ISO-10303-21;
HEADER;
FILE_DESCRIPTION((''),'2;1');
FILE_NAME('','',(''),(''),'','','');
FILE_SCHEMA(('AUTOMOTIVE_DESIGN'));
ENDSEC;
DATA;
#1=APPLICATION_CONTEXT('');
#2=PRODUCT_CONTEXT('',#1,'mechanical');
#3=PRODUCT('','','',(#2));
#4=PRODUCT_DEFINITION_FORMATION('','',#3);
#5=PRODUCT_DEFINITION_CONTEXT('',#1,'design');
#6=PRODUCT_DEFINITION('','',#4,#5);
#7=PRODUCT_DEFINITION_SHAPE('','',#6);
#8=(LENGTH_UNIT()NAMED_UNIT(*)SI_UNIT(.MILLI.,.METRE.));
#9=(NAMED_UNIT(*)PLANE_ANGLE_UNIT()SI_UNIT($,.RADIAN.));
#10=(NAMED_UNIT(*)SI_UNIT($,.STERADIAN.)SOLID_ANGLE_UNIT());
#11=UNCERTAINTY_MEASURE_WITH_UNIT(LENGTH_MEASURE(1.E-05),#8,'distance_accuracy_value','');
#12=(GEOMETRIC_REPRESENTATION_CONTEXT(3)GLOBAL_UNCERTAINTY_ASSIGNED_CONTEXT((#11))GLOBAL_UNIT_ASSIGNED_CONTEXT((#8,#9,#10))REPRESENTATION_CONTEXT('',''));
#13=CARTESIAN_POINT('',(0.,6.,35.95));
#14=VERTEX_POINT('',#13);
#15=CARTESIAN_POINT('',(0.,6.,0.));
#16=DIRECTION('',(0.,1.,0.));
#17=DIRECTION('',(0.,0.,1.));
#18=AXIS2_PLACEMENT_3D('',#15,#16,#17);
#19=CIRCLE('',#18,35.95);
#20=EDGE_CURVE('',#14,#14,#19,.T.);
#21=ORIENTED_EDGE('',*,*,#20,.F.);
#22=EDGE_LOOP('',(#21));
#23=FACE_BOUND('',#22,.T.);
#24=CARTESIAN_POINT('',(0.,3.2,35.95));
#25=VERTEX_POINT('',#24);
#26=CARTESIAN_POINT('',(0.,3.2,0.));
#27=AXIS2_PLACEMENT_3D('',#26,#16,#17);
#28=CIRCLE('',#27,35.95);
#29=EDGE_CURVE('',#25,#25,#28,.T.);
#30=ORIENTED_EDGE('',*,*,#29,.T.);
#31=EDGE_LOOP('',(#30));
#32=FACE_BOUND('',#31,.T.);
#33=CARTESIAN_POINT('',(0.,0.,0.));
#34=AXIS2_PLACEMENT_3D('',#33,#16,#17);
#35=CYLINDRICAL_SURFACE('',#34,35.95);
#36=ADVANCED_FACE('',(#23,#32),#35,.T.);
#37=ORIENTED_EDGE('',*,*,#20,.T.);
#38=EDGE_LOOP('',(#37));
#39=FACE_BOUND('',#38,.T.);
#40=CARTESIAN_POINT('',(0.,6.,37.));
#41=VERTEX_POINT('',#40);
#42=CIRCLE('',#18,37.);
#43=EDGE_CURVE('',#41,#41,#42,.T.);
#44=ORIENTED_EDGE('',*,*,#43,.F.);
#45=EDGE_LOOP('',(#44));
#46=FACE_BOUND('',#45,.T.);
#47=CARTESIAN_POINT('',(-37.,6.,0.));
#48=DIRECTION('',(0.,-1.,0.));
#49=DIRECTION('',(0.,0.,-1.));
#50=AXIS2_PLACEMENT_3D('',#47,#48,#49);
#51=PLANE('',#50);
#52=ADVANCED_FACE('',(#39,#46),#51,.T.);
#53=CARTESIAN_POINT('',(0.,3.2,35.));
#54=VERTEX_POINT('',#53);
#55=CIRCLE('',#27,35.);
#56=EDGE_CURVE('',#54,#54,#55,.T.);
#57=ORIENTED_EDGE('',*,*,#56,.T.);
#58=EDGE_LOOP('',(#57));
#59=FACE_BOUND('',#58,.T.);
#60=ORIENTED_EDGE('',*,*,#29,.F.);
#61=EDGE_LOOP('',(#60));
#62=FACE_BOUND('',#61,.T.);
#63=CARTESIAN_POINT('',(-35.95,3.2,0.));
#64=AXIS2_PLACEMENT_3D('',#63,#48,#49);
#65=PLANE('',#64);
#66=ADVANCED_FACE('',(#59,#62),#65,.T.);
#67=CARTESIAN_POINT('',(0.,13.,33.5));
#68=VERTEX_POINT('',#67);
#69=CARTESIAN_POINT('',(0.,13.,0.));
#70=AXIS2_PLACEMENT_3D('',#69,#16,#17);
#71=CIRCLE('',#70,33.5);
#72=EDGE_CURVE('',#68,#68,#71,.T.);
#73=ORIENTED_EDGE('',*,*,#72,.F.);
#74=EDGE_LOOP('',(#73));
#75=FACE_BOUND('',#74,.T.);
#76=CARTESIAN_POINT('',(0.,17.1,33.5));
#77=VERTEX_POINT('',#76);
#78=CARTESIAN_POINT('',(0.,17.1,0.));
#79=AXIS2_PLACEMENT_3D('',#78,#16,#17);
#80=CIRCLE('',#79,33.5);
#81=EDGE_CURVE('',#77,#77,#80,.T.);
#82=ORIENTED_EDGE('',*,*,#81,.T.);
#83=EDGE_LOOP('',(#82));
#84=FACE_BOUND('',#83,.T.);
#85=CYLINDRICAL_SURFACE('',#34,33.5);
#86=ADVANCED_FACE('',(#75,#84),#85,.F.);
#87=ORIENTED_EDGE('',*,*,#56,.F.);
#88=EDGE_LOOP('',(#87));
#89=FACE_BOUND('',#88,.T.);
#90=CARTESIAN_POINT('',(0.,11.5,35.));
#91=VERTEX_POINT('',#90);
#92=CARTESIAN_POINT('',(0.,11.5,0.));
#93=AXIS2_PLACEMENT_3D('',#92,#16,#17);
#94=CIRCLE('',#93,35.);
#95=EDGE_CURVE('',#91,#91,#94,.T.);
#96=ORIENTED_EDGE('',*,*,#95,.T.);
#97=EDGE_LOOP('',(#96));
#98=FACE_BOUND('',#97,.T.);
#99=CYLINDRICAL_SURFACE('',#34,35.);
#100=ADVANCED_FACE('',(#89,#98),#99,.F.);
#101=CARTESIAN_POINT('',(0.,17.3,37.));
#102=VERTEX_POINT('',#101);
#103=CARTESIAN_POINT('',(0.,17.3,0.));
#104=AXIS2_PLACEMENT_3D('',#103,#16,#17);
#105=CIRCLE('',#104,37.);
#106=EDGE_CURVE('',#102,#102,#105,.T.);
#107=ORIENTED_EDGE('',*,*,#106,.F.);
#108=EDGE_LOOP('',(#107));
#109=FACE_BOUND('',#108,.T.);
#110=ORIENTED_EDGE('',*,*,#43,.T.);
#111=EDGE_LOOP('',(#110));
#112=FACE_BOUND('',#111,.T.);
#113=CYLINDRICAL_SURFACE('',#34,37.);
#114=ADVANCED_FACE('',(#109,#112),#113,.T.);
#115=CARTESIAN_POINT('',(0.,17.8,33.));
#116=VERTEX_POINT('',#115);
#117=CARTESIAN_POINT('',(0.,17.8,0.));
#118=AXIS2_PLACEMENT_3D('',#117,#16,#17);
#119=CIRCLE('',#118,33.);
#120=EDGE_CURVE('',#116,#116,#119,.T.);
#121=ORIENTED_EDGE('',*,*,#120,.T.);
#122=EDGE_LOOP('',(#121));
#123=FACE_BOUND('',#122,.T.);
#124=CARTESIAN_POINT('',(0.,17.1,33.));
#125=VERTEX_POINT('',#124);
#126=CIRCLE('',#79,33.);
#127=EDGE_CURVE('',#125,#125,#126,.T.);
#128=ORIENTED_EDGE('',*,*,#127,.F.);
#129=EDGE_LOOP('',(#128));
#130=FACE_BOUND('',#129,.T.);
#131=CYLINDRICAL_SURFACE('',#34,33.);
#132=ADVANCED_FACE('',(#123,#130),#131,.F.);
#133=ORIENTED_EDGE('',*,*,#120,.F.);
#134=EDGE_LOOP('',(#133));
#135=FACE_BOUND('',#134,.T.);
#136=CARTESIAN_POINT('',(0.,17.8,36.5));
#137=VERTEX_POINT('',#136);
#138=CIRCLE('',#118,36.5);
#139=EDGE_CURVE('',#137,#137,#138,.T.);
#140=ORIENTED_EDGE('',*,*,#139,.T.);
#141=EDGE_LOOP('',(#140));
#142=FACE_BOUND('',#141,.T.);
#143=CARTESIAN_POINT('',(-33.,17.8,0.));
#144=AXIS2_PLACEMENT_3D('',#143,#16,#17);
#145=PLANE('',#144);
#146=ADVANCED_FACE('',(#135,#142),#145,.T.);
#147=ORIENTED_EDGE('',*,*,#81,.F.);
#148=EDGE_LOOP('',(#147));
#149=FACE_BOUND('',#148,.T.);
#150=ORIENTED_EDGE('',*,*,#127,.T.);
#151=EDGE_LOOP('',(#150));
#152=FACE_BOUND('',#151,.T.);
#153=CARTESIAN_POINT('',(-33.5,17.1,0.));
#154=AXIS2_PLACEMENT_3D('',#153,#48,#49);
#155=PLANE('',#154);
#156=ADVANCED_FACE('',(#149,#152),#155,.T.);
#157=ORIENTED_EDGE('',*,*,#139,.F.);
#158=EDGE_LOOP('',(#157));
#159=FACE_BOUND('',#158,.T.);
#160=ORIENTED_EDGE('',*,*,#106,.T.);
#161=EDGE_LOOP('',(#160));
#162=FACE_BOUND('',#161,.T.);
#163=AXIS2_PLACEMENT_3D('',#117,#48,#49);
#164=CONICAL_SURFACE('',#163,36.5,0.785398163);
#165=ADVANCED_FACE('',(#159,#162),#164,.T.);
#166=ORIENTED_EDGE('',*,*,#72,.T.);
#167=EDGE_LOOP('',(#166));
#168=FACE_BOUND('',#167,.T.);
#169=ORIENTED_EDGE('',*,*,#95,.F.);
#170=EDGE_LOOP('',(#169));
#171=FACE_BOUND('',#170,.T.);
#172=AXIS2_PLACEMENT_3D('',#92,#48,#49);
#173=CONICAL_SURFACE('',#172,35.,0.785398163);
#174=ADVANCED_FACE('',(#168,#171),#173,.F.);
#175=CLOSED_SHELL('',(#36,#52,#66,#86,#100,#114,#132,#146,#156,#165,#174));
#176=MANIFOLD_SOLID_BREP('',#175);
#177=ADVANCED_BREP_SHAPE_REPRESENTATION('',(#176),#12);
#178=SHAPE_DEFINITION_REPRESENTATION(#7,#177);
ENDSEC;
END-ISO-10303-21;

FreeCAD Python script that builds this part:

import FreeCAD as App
import Part
import Sketcher
Q = App.Units.Quantity

doc = App.newDocument("Part")
body = doc.addObject("PartDesign::Body", "Body")

sketch1 = body.newObject("Sketcher::SketchObject", "Sketch")
sketch1.AttachmentSupport = (doc.getObject("XY_Plane"), [""])
sketch1.MapMode = "FlatFace"
sketch1.addGeometry(Part.LineSegment(App.Vector(-35, 3.2, 0), App.Vector(-35, 11.5, 0)), False)
sketch1.addGeometry(Part.LineSegment(App.Vector(-35, 11.5, 0), App.Vector(-33.5, 13, 0)), False)
sketch1.addGeometry(Part.LineSegment(App.Vector(-33.5, 13, 0), App.Vector(-33.5, 17.1, 0)), False)
sketch1.addGeometry(Part.LineSegment(App.Vector(-33.5, 17.1, 0), App.Vector(-33, 17.1, 0)), False)
sketch1.addGeometry(Part.LineSegment(App.Vector(-33, 17.1, 0), App.Vector(-33, 17.8, 0)), False)
sketch1.addGeometry(Part.LineSegment(App.Vector(-33, 17.8, 0), App.Vector(-36.5, 17.8, 0)), False)
sketch1.addGeometry(Part.LineSegment(App.Vector(-36.5, 17.8, 0), App.Vector(-37, 17.3, 0)), False)
sketch1.addGeometry(Part.LineSegment(App.Vector(-37, 17.3, 0), App.Vector(-37, 6, 0)), False)
sketch1.addGeometry(Part.LineSegment(App.Vector(-37, 6, 0), App.Vector(-36, 6, 0)), False)
sketch1.addGeometry(Part.LineSegment(App.Vector(-36, 6, 0), App.Vector(-36, 3.2, 0)), False)
sketch1.addGeometry(Part.LineSegment(App.Vector(-36, 3.2, 0), App.Vector(-35, 3.2, 0)), False)
sketch1.addConstraint(Sketcher.Constraint("Coincident", 0, 2, 1, 1))
sketch1.addConstraint(Sketcher.Constraint("Coincident", 1, 2, 2, 1))
sketch1.addConstraint(Sketcher.Constraint("Coincident", 2, 2, 3, 1))
sketch1.addConstraint(Sketcher.Constraint("Coincident", 3, 2, 4, 1))
sketch1.addConstraint(Sketcher.Constraint("Coincident", 4, 2, 5, 1))
sketch1.addConstraint(Sketcher.Constraint("Coincident", 5, 2, 6, 1))
sketch1.addConstraint(Sketcher.Constraint("Coincident", 6, 2, 7, 1))
sketch1.addConstraint(Sketcher.Constraint("Coincident", 7, 2, 8, 1))
sketch1.addConstraint(Sketcher.Constraint("Coincident", 8, 2, 9, 1))
sketch1.addConstraint(Sketcher.Constraint("Coincident", 9, 2, 10, 1))
sketch1.addConstraint(Sketcher.Constraint("Coincident", 10, 2, 0, 1))
sketch1.addConstraint(Sketcher.Constraint("Vertical", 0))
sketch1.addConstraint(Sketcher.Constraint("Vertical", 2))
sketch1.addConstraint(Sketcher.Constraint("Horizontal", 3))
sketch1.addConstraint(Sketcher.Constraint("Vertical", 4))
sketch1.addConstraint(Sketcher.Constraint("Horizontal", 5))
sketch1.addConstraint(Sketcher.Constraint("Vertical", 7))
sketch1.addConstraint(Sketcher.Constraint("Horizontal", 8))
sketch1.addConstraint(Sketcher.Constraint("Vertical", 9))
sketch1.addConstraint(Sketcher.Constraint("Horizontal", 10))
sketch1.addConstraint(Sketcher.Constraint("Parallel", 1, 6))
sketch1.addConstraint(Sketcher.Constraint("Angle", 1, Q("45 deg")))
sketch1.addConstraint(Sketcher.Constraint("DistanceX", 3, 1, 3, 2, Q("0.5 mm")))
sketch1.addConstraint(Sketcher.Constraint("DistanceX", 5, 2, 5, 1, Q("3.5 mm")))
sketch1.addConstraint(Sketcher.Constraint("DistanceY", 0, 1, 0, 2, Q("8.3 mm")))
sketch1.addConstraint(Sketcher.Constraint("DistanceY", 2, 1, 2, 2, Q("4.1 mm")))
sketch1.addConstraint(Sketcher.Constraint("DistanceY", 4, 1, 4, 2, Q("0.7 mm")))
sketch1.addConstraint(Sketcher.Constraint("DistanceY", 7, 2, 7, 1, Q("11.3 mm")))
sketch1.addConstraint(Sketcher.Constraint("DistanceY", 9, 2, 9, 1, Q("2.8 mm")))
sketch1.addConstraint(Sketcher.Constraint("DistanceX", 0, 2, -1, 1, Q("35 mm")))
sketch1.addConstraint(Sketcher.Constraint("DistanceY", -1, 1, 1, 2, Q("13 mm")))
sketch1.addConstraint(Sketcher.Constraint("DistanceX", 3, 2, -1, 1, Q("33 mm")))
sketch1.addConstraint(Sketcher.Constraint("DistanceX", 8, 1, 8, 2, Q("1.05 mm")))
revolution = body.newObject("PartDesign::Revolution", "Revolution")
revolution.Profile = sketch1
revolution.ReferenceAxis = (sketch1, ["V_Axis"])
revolution.Angle = 360

doc.recompute()
